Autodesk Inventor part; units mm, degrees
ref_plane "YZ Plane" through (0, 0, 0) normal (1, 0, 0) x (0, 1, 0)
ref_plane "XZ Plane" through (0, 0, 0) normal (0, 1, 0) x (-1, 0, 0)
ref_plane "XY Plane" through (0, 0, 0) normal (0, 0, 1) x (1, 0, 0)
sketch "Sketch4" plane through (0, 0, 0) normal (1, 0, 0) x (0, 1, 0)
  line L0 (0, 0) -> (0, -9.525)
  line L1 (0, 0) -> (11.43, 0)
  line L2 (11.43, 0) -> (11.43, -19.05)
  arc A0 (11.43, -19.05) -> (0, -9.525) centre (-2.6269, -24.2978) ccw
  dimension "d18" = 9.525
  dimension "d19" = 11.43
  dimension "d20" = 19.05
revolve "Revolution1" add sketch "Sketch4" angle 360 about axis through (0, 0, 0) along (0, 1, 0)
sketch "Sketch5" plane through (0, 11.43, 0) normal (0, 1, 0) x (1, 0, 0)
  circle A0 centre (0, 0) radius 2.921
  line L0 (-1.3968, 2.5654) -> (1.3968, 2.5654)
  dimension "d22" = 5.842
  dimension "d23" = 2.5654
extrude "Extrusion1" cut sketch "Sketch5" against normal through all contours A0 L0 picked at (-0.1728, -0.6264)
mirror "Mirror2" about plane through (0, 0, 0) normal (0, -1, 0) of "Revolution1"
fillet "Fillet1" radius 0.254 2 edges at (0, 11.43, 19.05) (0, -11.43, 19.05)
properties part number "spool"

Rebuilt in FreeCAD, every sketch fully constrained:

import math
import FreeCAD as App
import Part
import Sketcher
Q = App.Units.Quantity


def edges_at(feature, points):
    """Names of the edges that pass closest to the given points."""
    edges = feature.Shape.Edges
    near = lambda p: min(range(len(edges)), key=lambda i: edges[i].distToShape(Part.Vertex(*p))[0])
    return sorted({f"Edge{near(p) + 1}" for p in points})

doc = App.newDocument("Part")
body = doc.addObject("PartDesign::Body", "Body")

# Sketch on YZ plane
sketch1 = doc.addObject("Sketcher::SketchObject", "Sketch")
body.addObject(sketch1)
sketch1.AttachmentSupport = (doc.YZ_Plane, [""])
sketch1.MapMode = "FlatFace"
sketch1.addGeometry([
    Part.LineSegment(App.Vector(11, 0, 0), App.Vector(0, 0, 0)),
    Part.LineSegment(App.Vector(0, 0, 0), App.Vector(0, -10, 0)),
    Part.ArcOfCircle(Part.Circle(App.Vector(-3, -24, 0), App.Vector(0, 0, 1), 15), math.radians(20), math.radians(80)),
    Part.LineSegment(App.Vector(11, -19, 0), App.Vector(11, 0, 0)),
], False)
sketch1.addConstraint([
    Sketcher.Constraint("Coincident", 0, 2, 1, 1),
    Sketcher.Constraint("Coincident", 1, 2, 2, 2),
    Sketcher.Constraint("Coincident", 2, 1, 3, 1),
    Sketcher.Constraint("Coincident", 3, 2, 0, 1),
    Sketcher.Constraint("Horizontal", 0),
    Sketcher.Constraint("Vertical", 1),
    Sketcher.Constraint("Vertical", 3),
    Sketcher.Constraint("Coincident", 0, 2, -1, 1),
    Sketcher.Constraint("DistanceX", 0, 2, 0, 1, Q("0.45 in")),
    Sketcher.Constraint("DistanceY", 3, 1, 3, 2, Q("0.75 in")),
    Sketcher.Constraint("DistanceY", 1, 2, 1, 1, Q("0.375 in")),
    Sketcher.Constraint("Radius", 2, Q("15.0045 mm")),
])
revolution = doc.addObject("PartDesign::Revolution", "Revolution")
body.addObject(revolution)
revolution.Profile = sketch1
revolution.ReferenceAxis = (sketch1, ["H_Axis"])
revolution.Angle = 360

# Sketch on XZ plane
sketch2 = doc.addObject("Sketcher::SketchObject", "Sketch001")
body.addObject(sketch2)
sketch2.AttachmentSupport = (doc.XZ_Plane, [""])
sketch2.MapMode = "FlatFace"
sketch2.AttachmentOffset = App.Placement(App.Vector(0, 0, -0.45 * 25.4), App.Rotation())
sketch2.addGeometry([
    Part.ArcOfCircle(Part.Circle(App.Vector(0, 0, 0), App.Vector(0, 0, 1), 2.9), math.radians(-61), math.radians(241)),
    Part.LineSegment(App.Vector(-1.4, -2.6, 0), App.Vector(1.4, -2.6, 0)),
], False)
sketch2.addConstraint([
    Sketcher.Constraint("Coincident", 0, 1, 1, 2),
    Sketcher.Constraint("Coincident", 1, 1, 0, 2),
    Sketcher.Constraint("Horizontal", 1),
    Sketcher.Constraint("Coincident", 0, 3, -1, 1),
    Sketcher.Constraint("Radius", 0, Q("0.115 in")),
    Sketcher.Constraint("DistanceY", 0, 1, -1, 1, Q("0.101 in")),
])
pocket1 = doc.addObject("PartDesign::Pocket", "Pocket")
body.addObject(pocket1)
pocket1.Profile = sketch2
pocket1.Type = "ThroughAll"
pocket1.Reversed = True
doc.recompute()

mirrored = doc.addObject("PartDesign::Mirrored", "Mirrored")
body.addObject(mirrored)
mirrored.Originals = [revolution]
mirrored.MirrorPlane = (doc.XZ_Plane, [""])
body.Tip = mirrored
doc.recompute()

fillet = doc.addObject("PartDesign::Fillet", "Fillet")
body.addObject(fillet)
fillet.Base = (mirrored, edges_at(mirrored, [(0, 11.43, 19.05), (0, -11.43, 19.05)]))
fillet.Radius = Q("0.01 in")

doc.recompute()
